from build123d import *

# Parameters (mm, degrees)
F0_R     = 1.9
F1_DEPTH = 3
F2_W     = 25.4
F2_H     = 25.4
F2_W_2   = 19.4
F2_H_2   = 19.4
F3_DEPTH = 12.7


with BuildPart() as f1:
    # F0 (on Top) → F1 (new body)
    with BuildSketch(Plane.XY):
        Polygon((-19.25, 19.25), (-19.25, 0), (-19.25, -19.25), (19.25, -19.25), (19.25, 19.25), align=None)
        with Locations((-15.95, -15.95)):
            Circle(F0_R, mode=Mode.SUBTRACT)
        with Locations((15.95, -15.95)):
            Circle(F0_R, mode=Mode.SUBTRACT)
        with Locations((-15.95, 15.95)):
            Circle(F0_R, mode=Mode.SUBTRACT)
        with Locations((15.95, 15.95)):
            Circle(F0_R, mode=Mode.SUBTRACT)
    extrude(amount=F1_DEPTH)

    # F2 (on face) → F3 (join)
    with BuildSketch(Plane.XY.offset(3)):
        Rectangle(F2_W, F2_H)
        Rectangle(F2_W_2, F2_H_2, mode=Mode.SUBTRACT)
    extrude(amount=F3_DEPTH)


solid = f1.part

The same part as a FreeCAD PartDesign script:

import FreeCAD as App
import Part
import Sketcher

V = App.Vector
Q = App.Units.Quantity


def add_polygon(sketch, points):
    """Adds a closed chain of lines whose ends are joined by coincident constraints."""
    first, n = sketch.GeometryCount, len(points)
    for a, b in zip(points, points[1:] + points[:1]):
        sketch.addGeometry(Part.LineSegment(App.Vector(*a, 0), App.Vector(*b, 0)), False)
    for i in range(n):
        sketch.addConstraint(Sketcher.Constraint("Coincident", first + i, 2, first + (i + 1) % n, 1))

doc = App.newDocument("Part")
body = doc.addObject("PartDesign::Body", "Body")

# Sketch on XY plane
sketch1 = body.newObject("Sketcher::SketchObject", "Sketch")
sketch1.AttachmentSupport = (doc.getObject("XY_Plane"), [""])
sketch1.MapMode = "FlatFace"
add_polygon(sketch1, [(-19.2, 19.2), (-19.2, -19.2), (19.2, -19.2), (19.2, 19.2)])  # lines 0-3
sketch1.addGeometry(Part.Circle(V(-15.9, -15.9, 0), V(0, 0, 1), 1.9), False)  # 4
sketch1.addGeometry(Part.Circle(V(15.9, -15.9, 0), V(0, 0, 1), 1.9), False)  # 5
sketch1.addGeometry(Part.Circle(V(-15.9, 15.9, 0), V(0, 0, 1), 1.9), False)  # 6
sketch1.addGeometry(Part.Circle(V(15.9, 15.9, 0), V(0, 0, 1), 1.9), False)  # 7
sketch1.addConstraint(Sketcher.Constraint("Vertical", 0))
sketch1.addConstraint(Sketcher.Constraint("Horizontal", 1))
sketch1.addConstraint(Sketcher.Constraint("Vertical", 2))
sketch1.addConstraint(Sketcher.Constraint("Horizontal", 3))
sketch1.addConstraint(Sketcher.Constraint("Equal", 4, 5))
sketch1.addConstraint(Sketcher.Constraint("Equal", 5, 6))
sketch1.addConstraint(Sketcher.Constraint("Equal", 6, 7))
sketch1.addConstraint(Sketcher.Constraint("Symmetric", 5, 3, 6, 3, -1, 1))
sketch1.addConstraint(Sketcher.Constraint("Symmetric", 4, 3, 7, 3, -1, 1))
sketch1.addConstraint(Sketcher.Constraint("Symmetric", 0, 2, 2, 2, -1, 1))
sketch1.addConstraint(Sketcher.Constraint("Symmetric", 4, 3, 5, 3, -2))
sketch1.addConstraint(Sketcher.Constraint("Equal", 3, 0))
sketch1.addConstraint(Sketcher.Constraint("Diameter", 4, Q("3.8 mm")))
sketch1.addConstraint(Sketcher.Constraint("DistanceX", 1, 1, 1, 2, Q("38.5 mm")))
sketch1.addConstraint(Sketcher.Constraint("DistanceX", 4, 3, 5, 3, Q("31.9 mm")))
sketch1.addConstraint(Sketcher.Constraint("DistanceY", 4, 3, 6, 3, Q("31.9 mm")))
pad1 = body.newObject("PartDesign::Pad", "Pad")
pad1.Profile = sketch1
pad1.Length = 3

# Sketch on XY plane
sketch2 = body.newObject("Sketcher::SketchObject", "Sketch001")
sketch2.AttachmentSupport = (doc.getObject("XY_Plane"), [""])
sketch2.MapMode = "FlatFace"
sketch2.AttachmentOffset = App.Placement(V(0, 0, 3), App.Rotation())
add_polygon(sketch2, [(-13, 13), (-13, -13), (13, -13), (13, 13)])  # lines 0-3
add_polygon(sketch2, [(10, -10), (-10, -10), (-10, 10), (10, 10)])  # lines 4-7
sketch2.addConstraint(Sketcher.Constraint("Vertical", 0))
sketch2.addConstraint(Sketcher.Constraint("Horizontal", 1))
sketch2.addConstraint(Sketcher.Constraint("Vertical", 2))
sketch2.addConstraint(Sketcher.Constraint("Horizontal", 3))
sketch2.addConstraint(Sketcher.Constraint("Horizontal", 4))
sketch2.addConstraint(Sketcher.Constraint("Vertical", 5))
sketch2.addConstraint(Sketcher.Constraint("Horizontal", 6))
sketch2.addConstraint(Sketcher.Constraint("Vertical", 7))
sketch2.addConstraint(Sketcher.Constraint("Symmetric", 0, 2, 2, 2, -1, 1))
sketch2.addConstraint(Sketcher.Constraint("Symmetric", 4, 2, 6, 2, -1, 1))
sketch2.addConstraint(Sketcher.Constraint("Equal", 3, 0))
sketch2.addConstraint(Sketcher.Constraint("Equal", 6, 5))
sketch2.addConstraint(Sketcher.Constraint("DistanceX", 1, 1, 1, 2, Q("25.4 mm")))
sketch2.addConstraint(Sketcher.Constraint("DistanceX", 4, 2, 4, 1, Q("19.4 mm")))
pad2 = body.newObject("PartDesign::Pad", "Pad001")
pad2.Profile = sketch2
pad2.Length = 12.7

doc.recompute()
